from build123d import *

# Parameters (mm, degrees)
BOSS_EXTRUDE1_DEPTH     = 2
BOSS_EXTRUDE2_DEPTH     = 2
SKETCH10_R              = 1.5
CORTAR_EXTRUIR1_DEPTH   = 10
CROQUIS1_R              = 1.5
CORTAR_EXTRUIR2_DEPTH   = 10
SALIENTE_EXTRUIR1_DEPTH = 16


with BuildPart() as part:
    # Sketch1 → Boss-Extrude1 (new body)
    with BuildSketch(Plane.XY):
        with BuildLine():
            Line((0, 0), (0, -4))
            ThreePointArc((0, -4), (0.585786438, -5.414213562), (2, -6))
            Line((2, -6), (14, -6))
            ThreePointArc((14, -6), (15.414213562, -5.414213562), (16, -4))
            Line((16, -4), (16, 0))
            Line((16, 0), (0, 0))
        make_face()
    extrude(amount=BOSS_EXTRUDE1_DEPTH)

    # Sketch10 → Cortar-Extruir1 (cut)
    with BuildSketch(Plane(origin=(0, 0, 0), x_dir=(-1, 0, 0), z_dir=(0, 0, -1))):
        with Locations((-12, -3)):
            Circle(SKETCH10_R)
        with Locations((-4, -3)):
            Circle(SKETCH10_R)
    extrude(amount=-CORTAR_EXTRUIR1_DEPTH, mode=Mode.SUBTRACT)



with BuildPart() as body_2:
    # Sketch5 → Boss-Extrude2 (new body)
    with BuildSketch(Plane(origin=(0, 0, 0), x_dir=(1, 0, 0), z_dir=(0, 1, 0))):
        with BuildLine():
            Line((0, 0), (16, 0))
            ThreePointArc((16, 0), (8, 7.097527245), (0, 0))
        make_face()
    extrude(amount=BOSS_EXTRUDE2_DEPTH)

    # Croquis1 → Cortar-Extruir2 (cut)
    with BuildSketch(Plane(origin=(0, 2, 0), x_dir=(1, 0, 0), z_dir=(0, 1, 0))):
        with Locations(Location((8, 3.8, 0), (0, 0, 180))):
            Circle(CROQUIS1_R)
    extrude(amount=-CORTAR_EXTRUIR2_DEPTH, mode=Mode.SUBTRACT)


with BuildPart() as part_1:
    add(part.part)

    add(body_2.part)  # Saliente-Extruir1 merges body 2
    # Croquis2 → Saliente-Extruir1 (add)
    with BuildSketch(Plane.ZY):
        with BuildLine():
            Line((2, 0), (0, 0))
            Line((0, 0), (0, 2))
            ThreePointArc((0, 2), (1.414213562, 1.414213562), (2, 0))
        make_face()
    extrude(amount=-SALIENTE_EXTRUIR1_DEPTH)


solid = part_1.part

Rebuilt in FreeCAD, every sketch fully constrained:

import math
import FreeCAD as App
import Part
import Sketcher
from FreeCAD import Vector

doc = App.newDocument("Part")
body = doc.addObject("PartDesign::Body", "Body")

# Sketch on XY plane
sketch1 = doc.addObject("Sketcher::SketchObject", "Sketch")
body.addObject(sketch1)
sketch1.AttachmentSupport = (doc.XY_Plane, [""])
sketch1.MapMode = "FlatFace"
sketch1.addGeometry([
    Part.LineSegment(Vector(0, 0, 0), Vector(0, -4, 0)),  # 0
    Part.ArcOfCircle(Part.Circle(Vector(2, -4, 0), Vector(0, 0, 1), 2), math.radians(-180), math.radians(-90)),  # 1
    Part.LineSegment(Vector(2, -6, 0), Vector(14, -6, 0)),  # 2
    Part.ArcOfCircle(Part.Circle(Vector(14, -4, 0), Vector(0, 0, 1), 2), math.radians(-90), math.radians(0)),  # 3
    Part.LineSegment(Vector(16, -4, 0), Vector(16, 0, 0)),  # 4
    Part.LineSegment(Vector(16, 0, 0), Vector(0, 0, 0)),  # 5
], False)
sketch1.addConstraint([
    Sketcher.Constraint("Tangent", 0, 2, 1, 1),
    Sketcher.Constraint("Tangent", 1, 2, 2, 1),
    Sketcher.Constraint("Tangent", 2, 2, 3, 1),
    Sketcher.Constraint("Tangent", 3, 2, 4, 1),
    Sketcher.Constraint("Coincident", 4, 2, 5, 1),
    Sketcher.Constraint("Coincident", 5, 2, 0, 1),
    Sketcher.Constraint("Vertical", 0),
    Sketcher.Constraint("Horizontal", 2),
    Sketcher.Constraint("Vertical", 4),
    Sketcher.Constraint("Horizontal", 5),
    Sketcher.Constraint("Coincident", 5, 2, -1, 1),
    Sketcher.Constraint("Equal", 1, 3),
    Sketcher.Constraint("Radius", 1, 2.0),
    Sketcher.Constraint("DistanceX", 2, 1, 2, 2, 12.0),
    Sketcher.Constraint("DistanceY", 0, 2, 0, 1, 4.0),
])
pad1 = doc.addObject("PartDesign::Pad", "Pad")
body.addObject(pad1)
pad1.Profile = sketch1
pad1.Length = 2

# Sketch on XY plane
sketch2 = doc.addObject("Sketcher::SketchObject", "Sketch001")
body.addObject(sketch2)
sketch2.AttachmentSupport = (doc.XY_Plane, [""])
sketch2.MapMode = "FlatFace"
sketch2.addGeometry([
    Part.Circle(Vector(12, -3, 0), Vector(0, 0, 1), 1.5),
    Part.Circle(Vector(4, -3, 0), Vector(0, 0, 1), 1.5),
], False)
sketch2.addConstraint([
    Sketcher.Constraint("Equal", 0, 1),
    Sketcher.Constraint("Horizontal", 0, 3, 1, 3),
    Sketcher.Constraint("Diameter", 0, 3.0),
    Sketcher.Constraint("DistanceX", -1, 1, 0, 3, 12.0),
    Sketcher.Constraint("DistanceY", 0, 3, -1, 1, 3.0),
    Sketcher.Constraint("DistanceX", -1, 1, 1, 3, 4.0),
])
pocket1 = doc.addObject("PartDesign::Pocket", "Pocket")
body.addObject(pocket1)
pocket1.Profile = sketch2
pocket1.Length = 10
pocket1.Reversed = True
body2 = doc.addObject("PartDesign::Body", "Body001")

# Sketch on XZ plane
sketch3 = doc.addObject("Sketcher::SketchObject", "Sketch002")
body2.addObject(sketch3)
sketch3.AttachmentSupport = (doc.getObject("XZ_Plane001"), [""])
sketch3.MapMode = "FlatFace"
sketch3.addGeometry([
    Part.LineSegment(Vector(0, 0, 0), Vector(16, 0, 0)),
    Part.ArcOfCircle(Part.Circle(Vector(8, 1, 0), Vector(0, 0, 1), 8), math.radians(-173), math.radians(-7)),
], False)
sketch3.addConstraint([
    Sketcher.Constraint("Coincident", 0, 1, 1, 1),
    Sketcher.Constraint("Coincident", 1, 2, 0, 2),
    Sketcher.Constraint("Horizontal", 0),
    Sketcher.Constraint("Coincident", 0, 1, -1, 1),
    Sketcher.Constraint("DistanceX", 0, 1, 0, 2, 16.0),
    Sketcher.Constraint("Radius", 1, 8.057376),
])
pad2 = doc.addObject("PartDesign::Pad", "Pad001")
body2.addObject(pad2)
pad2.Profile = sketch3
pad2.Length = 2
pad2.Reversed = True

# Sketch on XZ plane
sketch4 = doc.addObject("Sketcher::SketchObject", "Sketch003")
body2.addObject(sketch4)
sketch4.AttachmentSupport = (doc.getObject("XZ_Plane001"), [""])
sketch4.MapMode = "FlatFace"
sketch4.AttachmentOffset = App.Placement(Vector(0, 0, -2), App.Rotation())
sketch4.addGeometry(Part.Circle(Vector(8, -3.8, 0), Vector(0, 0, 1), 1.5), False)
sketch4.addConstraint([
    Sketcher.Constraint("Diameter", 0, 3.0),
    Sketcher.Constraint("DistanceX", -1, 1, 0, 3, 8.0),
    Sketcher.Constraint("DistanceY", 0, 3, -1, 1, 3.8),
])
pocket2 = doc.addObject("PartDesign::Pocket", "Pocket001")
body2.addObject(pocket2)
pocket2.Profile = sketch4
pocket2.Length = 10
pocket2.Reversed = True
body.AllowCompound = True
doc.recompute()

boolean = doc.addObject("PartDesign::Boolean", "Boolean")
body.addObject(boolean)
boolean.Type = "Fuse"
boolean.addObjects([body2])

# Sketch on YZ plane
sketch5 = doc.addObject("Sketcher::SketchObject", "Sketch004")
body.addObject(sketch5)
sketch5.AttachmentSupport = (doc.YZ_Plane, [""])
sketch5.MapMode = "FlatFace"
sketch5.addGeometry([
    Part.LineSegment(Vector(0, 0, 0), Vector(0, 2, 0)),
    Part.ArcOfCircle(Part.Circle(Vector(0, 0, 0), Vector(0, 0, 1), 2), math.radians(0), math.radians(90)),
    Part.LineSegment(Vector(2, 0, 0), Vector(0, 0, 0)),
], False)
sketch5.addConstraint([
    Sketcher.Constraint("Coincident", 0, 2, 1, 2),
    Sketcher.Constraint("Coincident", 1, 1, 2, 1),
    Sketcher.Constraint("Coincident", 2, 2, 0, 1),
    Sketcher.Constraint("Vertical", 0),
    Sketcher.Constraint("Horizontal", 2),
    Sketcher.Constraint("Coincident", 1, 3, -1, 1),
    Sketcher.Constraint("Coincident", 2, 2, -1, 1),
    Sketcher.Constraint("Radius", 1, 2.0),
])
pad3 = doc.addObject("PartDesign::Pad", "Pad002")
body.addObject(pad3)
pad3.Profile = sketch5
pad3.Length = 16

doc.recompute()
